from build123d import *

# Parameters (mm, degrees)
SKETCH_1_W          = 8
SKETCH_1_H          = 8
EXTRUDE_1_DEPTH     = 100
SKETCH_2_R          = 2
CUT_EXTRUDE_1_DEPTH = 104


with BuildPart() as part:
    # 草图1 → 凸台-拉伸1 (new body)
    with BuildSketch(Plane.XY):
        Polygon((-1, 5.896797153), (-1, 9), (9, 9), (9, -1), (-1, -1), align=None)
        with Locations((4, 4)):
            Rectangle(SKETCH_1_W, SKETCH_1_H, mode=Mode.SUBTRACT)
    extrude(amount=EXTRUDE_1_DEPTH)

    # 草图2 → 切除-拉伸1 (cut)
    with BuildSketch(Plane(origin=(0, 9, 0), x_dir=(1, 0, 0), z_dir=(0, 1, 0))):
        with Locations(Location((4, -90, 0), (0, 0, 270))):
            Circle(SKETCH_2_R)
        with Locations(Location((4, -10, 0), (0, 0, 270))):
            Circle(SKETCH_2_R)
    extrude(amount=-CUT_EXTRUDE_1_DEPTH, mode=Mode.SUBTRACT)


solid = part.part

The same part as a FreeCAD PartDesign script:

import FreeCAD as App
import Part
import Sketcher
Q = App.Units.Quantity


def add_polygon(sketch, points):
    """Adds a closed chain of lines whose ends are joined by coincident constraints."""
    first, n = sketch.GeometryCount, len(points)
    for a, b in zip(points, points[1:] + points[:1]):
        sketch.addGeometry(Part.LineSegment(App.Vector(*a, 0), App.Vector(*b, 0)), False)
    for i in range(n):
        sketch.addConstraint(Sketcher.Constraint("Coincident", first + i, 2, first + (i + 1) % n, 1))

doc = App.newDocument("Part")
body = doc.addObject("PartDesign::Body", "Body")

# Sketch on XY plane
sketch1 = body.newObject("Sketcher::SketchObject", "Sketch")
sketch1.AttachmentSupport = (doc.getObject("XY_Plane"), [""])
sketch1.MapMode = "FlatFace"
add_polygon(sketch1, [(-1, 9), (-1, -1), (9, -1), (9, 9)])  # lines 0-3
add_polygon(sketch1, [(0, 0), (0, 8), (8, 8), (8, 0)])  # lines 4-7
sketch1.addConstraint(Sketcher.Constraint("Vertical", 0))
sketch1.addConstraint(Sketcher.Constraint("Horizontal", 1))
sketch1.addConstraint(Sketcher.Constraint("Vertical", 2))
sketch1.addConstraint(Sketcher.Constraint("Horizontal", 3))
sketch1.addConstraint(Sketcher.Constraint("Vertical", 4))
sketch1.addConstraint(Sketcher.Constraint("Horizontal", 5))
sketch1.addConstraint(Sketcher.Constraint("Vertical", 6))
sketch1.addConstraint(Sketcher.Constraint("Horizontal", 7))
sketch1.addConstraint(Sketcher.Constraint("Coincident", 7, 2, -1, 1))
sketch1.addConstraint(Sketcher.Constraint("Equal", 3, 0))
sketch1.addConstraint(Sketcher.Constraint("Equal", 7, 4))
sketch1.addConstraint(Sketcher.Constraint("DistanceX", 1, 1, 1, 2, Q("10 mm")))
sketch1.addConstraint(Sketcher.Constraint("DistanceX", 5, 1, 5, 2, Q("8 mm")))
sketch1.addConstraint(Sketcher.Constraint("DistanceX", 0, 2, -1, 1, Q("1 mm")))
sketch1.addConstraint(Sketcher.Constraint("DistanceY", 0, 2, -1, 1, Q("1 mm")))
pad1 = body.newObject("PartDesign::Pad", "Pad")
pad1.Profile = sketch1
pad1.Length = 100

# Sketch on XZ plane
sketch2 = body.newObject("Sketcher::SketchObject", "Sketch001")
sketch2.AttachmentSupport = (doc.getObject("XZ_Plane"), [""])
sketch2.MapMode = "FlatFace"
sketch2.AttachmentOffset = App.Placement(App.Vector(0, 0, -9), App.Rotation())
sketch2.addGeometry(Part.Circle(App.Vector(4, 90, 0), App.Vector(0, 0, 1), 2), False)
sketch2.addGeometry(Part.Circle(App.Vector(4, 10, 0), App.Vector(0, 0, 1), 2), False)
sketch2.addConstraint(Sketcher.Constraint("Equal", 0, 1))
sketch2.addConstraint(Sketcher.Constraint("Vertical", 0, 3, 1, 3))
sketch2.addConstraint(Sketcher.Constraint("Diameter", 0, Q("4 mm")))
sketch2.addConstraint(Sketcher.Constraint("DistanceX", -1, 1, 0, 3, Q("4 mm")))
sketch2.addConstraint(Sketcher.Constraint("DistanceY", -1, 1, 0, 3, Q("90 mm")))
sketch2.addConstraint(Sketcher.Constraint("DistanceY", -1, 1, 1, 3, Q("10 mm")))
pocket1 = body.newObject("PartDesign::Pocket", "Pocket")
pocket1.Profile = sketch2
pocket1.Length = 104
pocket1.Reversed = True

doc.recompute()
